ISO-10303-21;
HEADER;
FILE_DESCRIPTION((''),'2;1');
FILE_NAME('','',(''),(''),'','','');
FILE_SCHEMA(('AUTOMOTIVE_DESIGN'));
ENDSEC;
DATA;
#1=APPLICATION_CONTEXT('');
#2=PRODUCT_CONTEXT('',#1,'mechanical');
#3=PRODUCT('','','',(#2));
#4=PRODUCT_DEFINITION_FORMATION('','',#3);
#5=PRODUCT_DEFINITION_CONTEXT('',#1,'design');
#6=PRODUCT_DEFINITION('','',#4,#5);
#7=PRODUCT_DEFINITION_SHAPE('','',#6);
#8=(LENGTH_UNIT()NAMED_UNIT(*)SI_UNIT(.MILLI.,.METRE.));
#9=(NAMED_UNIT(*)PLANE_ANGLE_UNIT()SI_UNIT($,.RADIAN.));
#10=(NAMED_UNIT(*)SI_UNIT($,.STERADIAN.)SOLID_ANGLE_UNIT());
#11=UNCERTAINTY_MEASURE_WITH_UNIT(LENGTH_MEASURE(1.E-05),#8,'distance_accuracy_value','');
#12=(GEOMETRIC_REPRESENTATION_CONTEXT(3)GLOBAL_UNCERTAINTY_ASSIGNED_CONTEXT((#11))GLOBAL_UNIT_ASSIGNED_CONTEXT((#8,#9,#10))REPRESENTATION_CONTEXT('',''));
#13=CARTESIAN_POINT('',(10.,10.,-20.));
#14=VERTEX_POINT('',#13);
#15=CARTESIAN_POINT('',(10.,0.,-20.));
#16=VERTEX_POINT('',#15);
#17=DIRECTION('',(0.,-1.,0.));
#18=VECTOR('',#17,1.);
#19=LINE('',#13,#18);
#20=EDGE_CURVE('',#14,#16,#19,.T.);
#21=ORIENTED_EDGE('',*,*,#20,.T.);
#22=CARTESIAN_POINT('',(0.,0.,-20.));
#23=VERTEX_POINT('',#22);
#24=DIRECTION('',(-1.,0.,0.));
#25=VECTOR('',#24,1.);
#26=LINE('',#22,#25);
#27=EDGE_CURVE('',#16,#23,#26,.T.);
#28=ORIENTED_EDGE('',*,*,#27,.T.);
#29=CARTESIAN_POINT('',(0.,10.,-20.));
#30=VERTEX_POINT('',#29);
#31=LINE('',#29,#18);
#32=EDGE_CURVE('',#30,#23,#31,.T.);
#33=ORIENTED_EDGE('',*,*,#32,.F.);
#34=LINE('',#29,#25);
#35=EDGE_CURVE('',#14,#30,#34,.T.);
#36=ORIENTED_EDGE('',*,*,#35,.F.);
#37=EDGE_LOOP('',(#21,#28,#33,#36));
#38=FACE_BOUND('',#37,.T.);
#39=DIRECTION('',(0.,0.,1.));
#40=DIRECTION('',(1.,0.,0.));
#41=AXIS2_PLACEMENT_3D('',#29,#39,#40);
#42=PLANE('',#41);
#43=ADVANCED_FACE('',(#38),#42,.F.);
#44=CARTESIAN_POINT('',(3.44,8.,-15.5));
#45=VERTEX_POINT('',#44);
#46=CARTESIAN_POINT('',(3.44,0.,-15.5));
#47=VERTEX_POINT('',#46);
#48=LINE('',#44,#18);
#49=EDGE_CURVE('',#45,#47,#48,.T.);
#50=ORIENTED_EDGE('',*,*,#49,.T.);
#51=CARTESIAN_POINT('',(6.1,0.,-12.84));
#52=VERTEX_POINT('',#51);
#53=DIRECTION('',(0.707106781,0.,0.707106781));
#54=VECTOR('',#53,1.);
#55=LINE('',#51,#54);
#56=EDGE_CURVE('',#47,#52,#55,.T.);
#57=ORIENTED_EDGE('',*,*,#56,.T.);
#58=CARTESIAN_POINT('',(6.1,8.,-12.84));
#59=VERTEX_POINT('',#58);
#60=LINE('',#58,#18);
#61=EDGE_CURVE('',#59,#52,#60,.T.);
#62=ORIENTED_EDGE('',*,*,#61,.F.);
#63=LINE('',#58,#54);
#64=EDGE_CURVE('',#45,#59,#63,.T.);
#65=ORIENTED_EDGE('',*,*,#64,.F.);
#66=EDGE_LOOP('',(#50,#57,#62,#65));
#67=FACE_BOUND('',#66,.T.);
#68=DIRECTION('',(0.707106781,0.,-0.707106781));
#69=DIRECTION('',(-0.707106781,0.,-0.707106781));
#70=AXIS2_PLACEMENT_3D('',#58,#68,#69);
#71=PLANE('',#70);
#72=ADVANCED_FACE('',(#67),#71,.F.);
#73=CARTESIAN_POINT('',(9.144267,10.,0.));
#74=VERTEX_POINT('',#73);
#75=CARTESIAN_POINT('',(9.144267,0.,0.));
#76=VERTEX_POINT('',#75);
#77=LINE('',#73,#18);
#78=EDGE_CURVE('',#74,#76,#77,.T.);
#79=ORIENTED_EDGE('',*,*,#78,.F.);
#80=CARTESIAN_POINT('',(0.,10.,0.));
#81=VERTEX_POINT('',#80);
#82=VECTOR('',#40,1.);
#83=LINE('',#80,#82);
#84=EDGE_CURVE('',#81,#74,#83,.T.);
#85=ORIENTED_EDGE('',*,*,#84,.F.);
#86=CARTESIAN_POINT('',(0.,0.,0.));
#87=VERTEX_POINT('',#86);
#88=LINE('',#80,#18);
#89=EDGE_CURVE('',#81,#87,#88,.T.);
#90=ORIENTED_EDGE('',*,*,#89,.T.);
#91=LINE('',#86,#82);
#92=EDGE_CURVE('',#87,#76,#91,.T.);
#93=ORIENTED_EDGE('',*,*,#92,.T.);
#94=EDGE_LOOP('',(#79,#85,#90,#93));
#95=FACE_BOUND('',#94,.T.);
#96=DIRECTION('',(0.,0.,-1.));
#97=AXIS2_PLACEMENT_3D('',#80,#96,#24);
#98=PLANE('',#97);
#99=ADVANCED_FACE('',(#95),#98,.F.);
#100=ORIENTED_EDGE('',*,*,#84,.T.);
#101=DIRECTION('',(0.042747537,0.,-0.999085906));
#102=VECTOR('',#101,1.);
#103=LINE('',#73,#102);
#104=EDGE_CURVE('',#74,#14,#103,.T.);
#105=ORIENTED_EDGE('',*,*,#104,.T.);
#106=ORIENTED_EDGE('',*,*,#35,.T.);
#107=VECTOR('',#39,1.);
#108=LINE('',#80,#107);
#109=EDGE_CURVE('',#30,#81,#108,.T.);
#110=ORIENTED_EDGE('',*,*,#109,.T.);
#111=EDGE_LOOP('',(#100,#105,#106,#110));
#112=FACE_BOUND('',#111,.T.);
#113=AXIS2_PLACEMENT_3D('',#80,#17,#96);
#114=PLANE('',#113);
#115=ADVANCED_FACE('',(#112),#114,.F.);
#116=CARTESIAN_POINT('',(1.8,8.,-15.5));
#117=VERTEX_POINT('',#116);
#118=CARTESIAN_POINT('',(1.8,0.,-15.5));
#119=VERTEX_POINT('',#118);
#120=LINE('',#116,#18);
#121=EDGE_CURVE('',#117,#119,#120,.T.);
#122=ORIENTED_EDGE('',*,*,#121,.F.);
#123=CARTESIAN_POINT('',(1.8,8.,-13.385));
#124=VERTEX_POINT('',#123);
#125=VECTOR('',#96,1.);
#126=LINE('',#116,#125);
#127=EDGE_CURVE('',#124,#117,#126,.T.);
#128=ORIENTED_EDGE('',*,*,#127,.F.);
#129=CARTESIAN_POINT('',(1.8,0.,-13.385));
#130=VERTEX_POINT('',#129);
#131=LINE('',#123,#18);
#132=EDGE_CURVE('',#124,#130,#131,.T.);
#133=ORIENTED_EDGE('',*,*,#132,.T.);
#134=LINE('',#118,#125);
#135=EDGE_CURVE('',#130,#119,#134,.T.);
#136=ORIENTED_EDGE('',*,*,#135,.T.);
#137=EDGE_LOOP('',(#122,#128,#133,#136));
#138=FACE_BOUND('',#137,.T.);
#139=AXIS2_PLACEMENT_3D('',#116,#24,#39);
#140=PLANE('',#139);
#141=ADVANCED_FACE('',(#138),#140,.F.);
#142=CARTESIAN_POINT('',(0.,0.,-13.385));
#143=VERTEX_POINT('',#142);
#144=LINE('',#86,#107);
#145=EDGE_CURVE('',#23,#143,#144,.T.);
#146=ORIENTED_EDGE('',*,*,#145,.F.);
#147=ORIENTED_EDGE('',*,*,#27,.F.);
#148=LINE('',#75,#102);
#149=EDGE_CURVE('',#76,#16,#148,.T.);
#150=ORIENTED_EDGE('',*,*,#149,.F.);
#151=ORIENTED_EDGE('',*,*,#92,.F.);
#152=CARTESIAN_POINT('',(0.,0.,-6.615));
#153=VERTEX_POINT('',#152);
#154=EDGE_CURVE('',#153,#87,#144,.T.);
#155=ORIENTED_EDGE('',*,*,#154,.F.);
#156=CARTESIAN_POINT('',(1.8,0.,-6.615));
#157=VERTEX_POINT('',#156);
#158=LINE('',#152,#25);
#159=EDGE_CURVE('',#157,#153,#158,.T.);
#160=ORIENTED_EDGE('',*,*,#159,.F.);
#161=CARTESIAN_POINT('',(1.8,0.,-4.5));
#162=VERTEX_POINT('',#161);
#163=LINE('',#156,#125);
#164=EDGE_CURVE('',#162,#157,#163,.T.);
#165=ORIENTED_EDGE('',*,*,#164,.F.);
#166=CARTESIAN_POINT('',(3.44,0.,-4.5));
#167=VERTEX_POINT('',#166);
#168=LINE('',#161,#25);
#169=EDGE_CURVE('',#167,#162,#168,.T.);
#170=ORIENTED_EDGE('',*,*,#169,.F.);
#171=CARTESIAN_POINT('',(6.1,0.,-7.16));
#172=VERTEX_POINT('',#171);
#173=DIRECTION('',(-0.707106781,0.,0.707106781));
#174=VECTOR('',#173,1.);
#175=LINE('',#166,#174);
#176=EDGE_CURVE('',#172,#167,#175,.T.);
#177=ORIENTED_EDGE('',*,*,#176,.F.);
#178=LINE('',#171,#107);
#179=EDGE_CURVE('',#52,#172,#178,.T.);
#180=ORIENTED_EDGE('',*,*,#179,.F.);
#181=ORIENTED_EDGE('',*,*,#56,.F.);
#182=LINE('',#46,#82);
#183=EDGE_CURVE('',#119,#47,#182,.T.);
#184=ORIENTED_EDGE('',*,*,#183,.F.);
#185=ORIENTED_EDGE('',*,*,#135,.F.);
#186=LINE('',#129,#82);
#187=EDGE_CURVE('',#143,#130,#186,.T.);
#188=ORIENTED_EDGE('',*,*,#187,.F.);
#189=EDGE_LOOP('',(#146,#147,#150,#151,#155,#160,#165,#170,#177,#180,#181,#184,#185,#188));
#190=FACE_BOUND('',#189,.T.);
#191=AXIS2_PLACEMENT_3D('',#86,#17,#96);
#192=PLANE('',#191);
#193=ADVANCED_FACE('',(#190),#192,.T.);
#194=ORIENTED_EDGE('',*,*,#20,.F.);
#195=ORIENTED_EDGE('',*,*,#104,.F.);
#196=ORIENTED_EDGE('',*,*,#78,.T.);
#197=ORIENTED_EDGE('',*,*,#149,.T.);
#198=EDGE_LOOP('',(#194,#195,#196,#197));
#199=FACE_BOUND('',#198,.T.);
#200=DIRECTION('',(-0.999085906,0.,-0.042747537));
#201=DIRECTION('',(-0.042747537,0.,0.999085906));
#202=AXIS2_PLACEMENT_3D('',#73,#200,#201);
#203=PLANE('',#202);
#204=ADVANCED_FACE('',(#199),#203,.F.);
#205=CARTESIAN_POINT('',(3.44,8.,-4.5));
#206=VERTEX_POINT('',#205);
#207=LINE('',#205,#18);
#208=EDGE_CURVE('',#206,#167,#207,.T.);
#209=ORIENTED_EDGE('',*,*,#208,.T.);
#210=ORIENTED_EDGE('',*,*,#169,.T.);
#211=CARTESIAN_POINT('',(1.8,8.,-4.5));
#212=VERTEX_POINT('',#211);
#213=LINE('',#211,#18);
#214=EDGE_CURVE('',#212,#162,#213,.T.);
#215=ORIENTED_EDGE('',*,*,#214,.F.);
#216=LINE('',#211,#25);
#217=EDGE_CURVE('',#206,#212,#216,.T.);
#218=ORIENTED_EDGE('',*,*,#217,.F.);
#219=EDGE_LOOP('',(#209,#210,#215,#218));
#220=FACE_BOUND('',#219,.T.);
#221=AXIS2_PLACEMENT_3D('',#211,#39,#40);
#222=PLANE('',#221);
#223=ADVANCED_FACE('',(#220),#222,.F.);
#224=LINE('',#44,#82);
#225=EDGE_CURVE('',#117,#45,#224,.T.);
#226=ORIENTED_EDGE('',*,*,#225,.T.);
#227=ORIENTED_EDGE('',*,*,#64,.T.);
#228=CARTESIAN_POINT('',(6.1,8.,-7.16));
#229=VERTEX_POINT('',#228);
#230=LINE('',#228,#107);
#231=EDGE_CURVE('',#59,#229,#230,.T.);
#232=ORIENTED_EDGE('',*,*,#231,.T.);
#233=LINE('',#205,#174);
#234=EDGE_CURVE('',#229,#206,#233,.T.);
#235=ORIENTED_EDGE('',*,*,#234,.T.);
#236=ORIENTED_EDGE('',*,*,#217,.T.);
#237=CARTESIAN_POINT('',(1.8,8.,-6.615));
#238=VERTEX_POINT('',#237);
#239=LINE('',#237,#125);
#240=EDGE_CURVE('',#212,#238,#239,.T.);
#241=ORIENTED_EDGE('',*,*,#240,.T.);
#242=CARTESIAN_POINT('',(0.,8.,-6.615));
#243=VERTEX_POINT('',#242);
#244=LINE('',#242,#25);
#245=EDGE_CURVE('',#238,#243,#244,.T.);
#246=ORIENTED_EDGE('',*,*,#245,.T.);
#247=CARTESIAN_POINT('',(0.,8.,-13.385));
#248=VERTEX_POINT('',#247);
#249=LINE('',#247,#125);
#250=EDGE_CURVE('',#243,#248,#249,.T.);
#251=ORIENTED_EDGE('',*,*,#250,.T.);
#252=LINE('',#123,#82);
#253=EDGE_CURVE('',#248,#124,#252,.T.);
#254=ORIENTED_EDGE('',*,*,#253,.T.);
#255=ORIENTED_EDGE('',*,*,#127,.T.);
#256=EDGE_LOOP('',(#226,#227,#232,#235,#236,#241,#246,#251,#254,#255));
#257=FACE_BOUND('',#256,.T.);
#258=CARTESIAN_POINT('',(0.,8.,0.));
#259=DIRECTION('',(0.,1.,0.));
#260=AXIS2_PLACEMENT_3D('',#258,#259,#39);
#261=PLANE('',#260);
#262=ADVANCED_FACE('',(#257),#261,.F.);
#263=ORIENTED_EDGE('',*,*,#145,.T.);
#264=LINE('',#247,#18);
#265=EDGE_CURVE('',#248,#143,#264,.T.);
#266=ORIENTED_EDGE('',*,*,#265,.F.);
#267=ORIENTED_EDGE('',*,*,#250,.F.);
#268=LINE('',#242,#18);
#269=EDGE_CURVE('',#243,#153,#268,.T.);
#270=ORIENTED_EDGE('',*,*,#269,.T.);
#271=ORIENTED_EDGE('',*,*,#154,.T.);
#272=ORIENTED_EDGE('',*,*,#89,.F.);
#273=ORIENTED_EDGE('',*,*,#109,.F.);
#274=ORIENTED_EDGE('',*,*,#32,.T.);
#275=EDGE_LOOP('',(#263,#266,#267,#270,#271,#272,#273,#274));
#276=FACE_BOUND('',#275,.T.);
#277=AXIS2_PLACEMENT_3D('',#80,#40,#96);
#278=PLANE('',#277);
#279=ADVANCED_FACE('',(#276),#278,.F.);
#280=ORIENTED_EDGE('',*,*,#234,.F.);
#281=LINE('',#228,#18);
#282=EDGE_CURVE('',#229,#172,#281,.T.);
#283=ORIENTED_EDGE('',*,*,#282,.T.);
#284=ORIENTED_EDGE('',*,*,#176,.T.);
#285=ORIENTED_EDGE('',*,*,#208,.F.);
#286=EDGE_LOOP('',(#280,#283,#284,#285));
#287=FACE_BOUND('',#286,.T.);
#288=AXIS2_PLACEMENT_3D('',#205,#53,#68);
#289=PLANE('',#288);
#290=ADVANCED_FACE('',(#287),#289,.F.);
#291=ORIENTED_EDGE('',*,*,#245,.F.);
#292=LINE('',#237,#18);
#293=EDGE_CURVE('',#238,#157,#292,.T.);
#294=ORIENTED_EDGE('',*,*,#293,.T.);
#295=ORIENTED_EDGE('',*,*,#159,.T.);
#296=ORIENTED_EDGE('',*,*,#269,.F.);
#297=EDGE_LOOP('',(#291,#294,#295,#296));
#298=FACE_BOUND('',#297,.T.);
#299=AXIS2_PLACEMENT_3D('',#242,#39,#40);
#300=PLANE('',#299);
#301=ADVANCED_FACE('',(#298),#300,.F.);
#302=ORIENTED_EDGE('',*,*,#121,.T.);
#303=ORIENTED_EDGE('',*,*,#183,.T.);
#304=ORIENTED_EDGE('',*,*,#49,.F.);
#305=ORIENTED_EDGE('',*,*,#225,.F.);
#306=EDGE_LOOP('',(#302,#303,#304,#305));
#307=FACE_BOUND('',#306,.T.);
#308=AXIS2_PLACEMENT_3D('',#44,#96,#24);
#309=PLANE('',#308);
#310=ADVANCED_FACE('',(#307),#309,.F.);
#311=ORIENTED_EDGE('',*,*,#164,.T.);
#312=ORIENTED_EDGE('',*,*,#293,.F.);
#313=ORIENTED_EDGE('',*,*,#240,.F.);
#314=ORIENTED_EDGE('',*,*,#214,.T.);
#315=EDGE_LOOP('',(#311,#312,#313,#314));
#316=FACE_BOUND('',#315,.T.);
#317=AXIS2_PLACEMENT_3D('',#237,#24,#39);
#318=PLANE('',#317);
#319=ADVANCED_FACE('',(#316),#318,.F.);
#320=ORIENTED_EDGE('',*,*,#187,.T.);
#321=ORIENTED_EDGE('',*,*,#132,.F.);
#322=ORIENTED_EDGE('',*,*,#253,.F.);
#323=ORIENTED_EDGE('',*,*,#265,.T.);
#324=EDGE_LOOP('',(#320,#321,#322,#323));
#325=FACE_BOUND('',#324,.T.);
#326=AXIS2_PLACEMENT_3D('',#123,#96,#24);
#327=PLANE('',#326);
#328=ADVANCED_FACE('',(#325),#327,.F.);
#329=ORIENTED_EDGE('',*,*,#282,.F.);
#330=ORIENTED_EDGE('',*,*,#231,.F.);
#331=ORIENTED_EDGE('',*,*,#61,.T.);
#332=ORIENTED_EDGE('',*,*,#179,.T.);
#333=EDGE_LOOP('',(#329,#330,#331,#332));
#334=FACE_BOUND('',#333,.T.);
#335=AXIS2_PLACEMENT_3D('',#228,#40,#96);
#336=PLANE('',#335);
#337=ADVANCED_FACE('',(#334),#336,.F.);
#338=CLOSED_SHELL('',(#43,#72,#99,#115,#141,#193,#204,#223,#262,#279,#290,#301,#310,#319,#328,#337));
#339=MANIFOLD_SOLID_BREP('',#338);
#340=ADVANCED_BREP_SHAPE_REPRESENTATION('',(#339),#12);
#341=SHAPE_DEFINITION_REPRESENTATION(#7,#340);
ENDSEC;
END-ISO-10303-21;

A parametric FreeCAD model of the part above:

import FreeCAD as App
import Part
import Sketcher

V = App.Vector
Q = App.Units.Quantity

doc = App.newDocument("Part")
params = doc.addObject("Spreadsheet::Sheet", "Params")
for row, (alias, value) in enumerate([
    ("sketch1_width", "10 mm"),
    ("sketch1_height", "20 mm"),
    ("pad1_length", "10 mm"),
    ("sketch2_width", "1.8 mm"),
    ("sketch2_width2", "1.64 mm"),
    ("sketch2_height", "6.77 mm"),
    ("sketch2_height2", "5.68 mm"),
    ("pocket1_length", "8 mm"),
    ("sketch3_height", "20 mm"),
], start=1):
    params.set(f"A{row}", alias)
    params.set(f"B{row}", "=" + value)
    params.setAlias(f"B{row}", alias)

body = doc.addObject("PartDesign::Body", "Body")

# Sketch on XZ plane
sketch1 = doc.addObject("Sketcher::SketchObject", "Sketch")
body.addObject(sketch1)
sketch1.AttachmentSupport = (doc.XZ_Plane, [""])
sketch1.MapMode = "FlatFace"
sketch1.addGeometry([
    Part.LineSegment(V(0, -20, 0), V(0, 0, 0)),
    Part.LineSegment(V(0, 0, 0), V(10, 0, 0)),
    Part.LineSegment(V(10, 0, 0), V(10, -20, 0)),
    Part.LineSegment(V(10, -20, 0), V(0, -20, 0)),
], False)
sketch1.addConstraint([
    Sketcher.Constraint("Coincident", 0, 2, 1, 1),
    Sketcher.Constraint("Coincident", 1, 2, 2, 1),
    Sketcher.Constraint("Coincident", 2, 2, 3, 1),
    Sketcher.Constraint("Coincident", 3, 2, 0, 1),
    Sketcher.Constraint("Vertical", 0),
    Sketcher.Constraint("Horizontal", 1),
    Sketcher.Constraint("Vertical", 2),
    Sketcher.Constraint("Horizontal", 3),
    Sketcher.Constraint("Coincident", 0, 2, -1, 1),
    Sketcher.Constraint("DistanceX", 1, 1, 1, 2, Q("10 mm")),
    Sketcher.Constraint("DistanceY", 0, 1, 0, 2, Q("20 mm")),
])
sketch1.setExpression("Constraints[9]", "Params.sketch1_width")
sketch1.setExpression("Constraints[10]", "Params.sketch1_height")
pad1 = doc.addObject("PartDesign::Pad", "Pad")
body.addObject(pad1)
pad1.Profile = sketch1
pad1.setExpression("Length", "Params.pad1_length")
pad1.Reversed = True

# Sketch on XZ plane
sketch2 = doc.addObject("Sketcher::SketchObject", "Sketch001")
body.addObject(sketch2)
sketch2.AttachmentSupport = (doc.XZ_Plane, [""])
sketch2.MapMode = "FlatFace"
sketch2.addGeometry([
    Part.LineSegment(V(1.8, -6.6, 0), V(0, -6.6, 0)),  # 0
    Part.LineSegment(V(0, -6.6, 0), V(0, -13.4, 0)),  # 1
    Part.LineSegment(V(0, -13.4, 0), V(1.8, -13.4, 0)),  # 2
    Part.LineSegment(V(1.8, -13.4, 0), V(1.8, -15.5, 0)),  # 3
    Part.LineSegment(V(1.8, -15.5, 0), V(3.4, -15.5, 0)),  # 4
    Part.LineSegment(V(3.4, -15.5, 0), V(6.1, -12.8, 0)),  # 5
    Part.LineSegment(V(6.1, -12.8, 0), V(6.1, -7.2, 0)),  # 6
    Part.LineSegment(V(6.1, -7.2, 0), V(3.4, -4.5, 0)),  # 7
    Part.LineSegment(V(3.4, -4.5, 0), V(1.8, -4.5, 0)),  # 8
    Part.LineSegment(V(1.8, -4.5, 0), V(1.8, -6.6, 0)),  # 9
], False)
sketch2.addConstraint([
    Sketcher.Constraint("Coincident", 0, 2, 1, 1),
    Sketcher.Constraint("Coincident", 1, 2, 2, 1),
    Sketcher.Constraint("Coincident", 2, 2, 3, 1),
    Sketcher.Constraint("Coincident", 3, 2, 4, 1),
    Sketcher.Constraint("Coincident", 4, 2, 5, 1),
    Sketcher.Constraint("Coincident", 5, 2, 6, 1),
    Sketcher.Constraint("Coincident", 6, 2, 7, 1),
    Sketcher.Constraint("Coincident", 7, 2, 8, 1),
    Sketcher.Constraint("Coincident", 8, 2, 9, 1),
    Sketcher.Constraint("Coincident", 9, 2, 0, 1),
    Sketcher.Constraint("Horizontal", 0),
    Sketcher.Constraint("Vertical", 1),
    Sketcher.Constraint("Horizontal", 2),
    Sketcher.Constraint("Vertical", 3),
    Sketcher.Constraint("Horizontal", 4),
    Sketcher.Constraint("Vertical", 6),
    Sketcher.Constraint("Horizontal", 8),
    Sketcher.Constraint("Vertical", 9),
    Sketcher.Constraint("PointOnObject", 0, 2, -2),
    Sketcher.Constraint("Perpendicular", 5, 7),
    Sketcher.Constraint("Vertical", 4, 2, 7, 2),
    Sketcher.Constraint("Vertical", 3, 2, 8, 2),
    Sketcher.Constraint("Equal", 3, 9),
    Sketcher.Constraint("Equal", 5, 7),
    Sketcher.Constraint("DistanceX", 0, 2, 0, 1, Q("1.8 mm")),
    Sketcher.Constraint("DistanceX", 4, 1, 4, 2, Q("1.64 mm")),
    Sketcher.Constraint("DistanceY", 1, 2, 1, 1, Q("6.77 mm")),
    Sketcher.Constraint("DistanceY", 6, 1, 6, 2, Q("5.68 mm")),
    Sketcher.Constraint("DistanceY", 3, 2, -1, 1, Q("15.5 mm")),
    Sketcher.Constraint("DistanceX", -1, 1, 5, 2, Q("6.1 mm")),
])
sketch2.setExpression("Constraints[24]", "Params.sketch2_width")
sketch2.setExpression("Constraints[25]", "Params.sketch2_width2")
sketch2.setExpression("Constraints[26]", "Params.sketch2_height")
sketch2.setExpression("Constraints[27]", "Params.sketch2_height2")
pocket1 = doc.addObject("PartDesign::Pocket", "Pocket")
body.addObject(pocket1)
pocket1.Profile = sketch2
pocket1.setExpression("Length", "Params.pocket1_length")

# Sketch on XZ plane
sketch3 = doc.addObject("Sketcher::SketchObject", "Sketch002")
body.addObject(sketch3)
sketch3.AttachmentSupport = (doc.XZ_Plane, [""])
sketch3.MapMode = "FlatFace"
sketch3.addGeometry([
    Part.LineSegment(V(10, 0, 0), V(9.1, 0, 0)),
    Part.LineSegment(V(9.1, 0, 0), V(10, -20, 0)),
    Part.LineSegment(V(10, -20, 0), V(10, 0, 0)),
], False)
sketch3.addConstraint([
    Sketcher.Constraint("Coincident", 0, 2, 1, 1),
    Sketcher.Constraint("Coincident", 1, 2, 2, 1),
    Sketcher.Constraint("Coincident", 2, 2, 0, 1),
    Sketcher.Constraint("Horizontal", 0),
    Sketcher.Constraint("Vertical", 2),
    Sketcher.Constraint("PointOnObject", 0, 2, -1),
    Sketcher.Constraint("DistanceY", 2, 1, 2, 2, Q("20 mm")),
    Sketcher.Constraint("DistanceX", -1, 1, 1, 2, Q("10 mm")),
    Sketcher.Constraint("Angle", 1, Q("-87.55 deg")),
])
sketch3.setExpression("Constraints[6]", "Params.sketch3_height")
pocket2 = doc.addObject("PartDesign::Pocket", "Pocket001")
body.addObject(pocket2)
pocket2.Profile = sketch3
pocket2.Type = "ThroughAll"

doc.recompute()
